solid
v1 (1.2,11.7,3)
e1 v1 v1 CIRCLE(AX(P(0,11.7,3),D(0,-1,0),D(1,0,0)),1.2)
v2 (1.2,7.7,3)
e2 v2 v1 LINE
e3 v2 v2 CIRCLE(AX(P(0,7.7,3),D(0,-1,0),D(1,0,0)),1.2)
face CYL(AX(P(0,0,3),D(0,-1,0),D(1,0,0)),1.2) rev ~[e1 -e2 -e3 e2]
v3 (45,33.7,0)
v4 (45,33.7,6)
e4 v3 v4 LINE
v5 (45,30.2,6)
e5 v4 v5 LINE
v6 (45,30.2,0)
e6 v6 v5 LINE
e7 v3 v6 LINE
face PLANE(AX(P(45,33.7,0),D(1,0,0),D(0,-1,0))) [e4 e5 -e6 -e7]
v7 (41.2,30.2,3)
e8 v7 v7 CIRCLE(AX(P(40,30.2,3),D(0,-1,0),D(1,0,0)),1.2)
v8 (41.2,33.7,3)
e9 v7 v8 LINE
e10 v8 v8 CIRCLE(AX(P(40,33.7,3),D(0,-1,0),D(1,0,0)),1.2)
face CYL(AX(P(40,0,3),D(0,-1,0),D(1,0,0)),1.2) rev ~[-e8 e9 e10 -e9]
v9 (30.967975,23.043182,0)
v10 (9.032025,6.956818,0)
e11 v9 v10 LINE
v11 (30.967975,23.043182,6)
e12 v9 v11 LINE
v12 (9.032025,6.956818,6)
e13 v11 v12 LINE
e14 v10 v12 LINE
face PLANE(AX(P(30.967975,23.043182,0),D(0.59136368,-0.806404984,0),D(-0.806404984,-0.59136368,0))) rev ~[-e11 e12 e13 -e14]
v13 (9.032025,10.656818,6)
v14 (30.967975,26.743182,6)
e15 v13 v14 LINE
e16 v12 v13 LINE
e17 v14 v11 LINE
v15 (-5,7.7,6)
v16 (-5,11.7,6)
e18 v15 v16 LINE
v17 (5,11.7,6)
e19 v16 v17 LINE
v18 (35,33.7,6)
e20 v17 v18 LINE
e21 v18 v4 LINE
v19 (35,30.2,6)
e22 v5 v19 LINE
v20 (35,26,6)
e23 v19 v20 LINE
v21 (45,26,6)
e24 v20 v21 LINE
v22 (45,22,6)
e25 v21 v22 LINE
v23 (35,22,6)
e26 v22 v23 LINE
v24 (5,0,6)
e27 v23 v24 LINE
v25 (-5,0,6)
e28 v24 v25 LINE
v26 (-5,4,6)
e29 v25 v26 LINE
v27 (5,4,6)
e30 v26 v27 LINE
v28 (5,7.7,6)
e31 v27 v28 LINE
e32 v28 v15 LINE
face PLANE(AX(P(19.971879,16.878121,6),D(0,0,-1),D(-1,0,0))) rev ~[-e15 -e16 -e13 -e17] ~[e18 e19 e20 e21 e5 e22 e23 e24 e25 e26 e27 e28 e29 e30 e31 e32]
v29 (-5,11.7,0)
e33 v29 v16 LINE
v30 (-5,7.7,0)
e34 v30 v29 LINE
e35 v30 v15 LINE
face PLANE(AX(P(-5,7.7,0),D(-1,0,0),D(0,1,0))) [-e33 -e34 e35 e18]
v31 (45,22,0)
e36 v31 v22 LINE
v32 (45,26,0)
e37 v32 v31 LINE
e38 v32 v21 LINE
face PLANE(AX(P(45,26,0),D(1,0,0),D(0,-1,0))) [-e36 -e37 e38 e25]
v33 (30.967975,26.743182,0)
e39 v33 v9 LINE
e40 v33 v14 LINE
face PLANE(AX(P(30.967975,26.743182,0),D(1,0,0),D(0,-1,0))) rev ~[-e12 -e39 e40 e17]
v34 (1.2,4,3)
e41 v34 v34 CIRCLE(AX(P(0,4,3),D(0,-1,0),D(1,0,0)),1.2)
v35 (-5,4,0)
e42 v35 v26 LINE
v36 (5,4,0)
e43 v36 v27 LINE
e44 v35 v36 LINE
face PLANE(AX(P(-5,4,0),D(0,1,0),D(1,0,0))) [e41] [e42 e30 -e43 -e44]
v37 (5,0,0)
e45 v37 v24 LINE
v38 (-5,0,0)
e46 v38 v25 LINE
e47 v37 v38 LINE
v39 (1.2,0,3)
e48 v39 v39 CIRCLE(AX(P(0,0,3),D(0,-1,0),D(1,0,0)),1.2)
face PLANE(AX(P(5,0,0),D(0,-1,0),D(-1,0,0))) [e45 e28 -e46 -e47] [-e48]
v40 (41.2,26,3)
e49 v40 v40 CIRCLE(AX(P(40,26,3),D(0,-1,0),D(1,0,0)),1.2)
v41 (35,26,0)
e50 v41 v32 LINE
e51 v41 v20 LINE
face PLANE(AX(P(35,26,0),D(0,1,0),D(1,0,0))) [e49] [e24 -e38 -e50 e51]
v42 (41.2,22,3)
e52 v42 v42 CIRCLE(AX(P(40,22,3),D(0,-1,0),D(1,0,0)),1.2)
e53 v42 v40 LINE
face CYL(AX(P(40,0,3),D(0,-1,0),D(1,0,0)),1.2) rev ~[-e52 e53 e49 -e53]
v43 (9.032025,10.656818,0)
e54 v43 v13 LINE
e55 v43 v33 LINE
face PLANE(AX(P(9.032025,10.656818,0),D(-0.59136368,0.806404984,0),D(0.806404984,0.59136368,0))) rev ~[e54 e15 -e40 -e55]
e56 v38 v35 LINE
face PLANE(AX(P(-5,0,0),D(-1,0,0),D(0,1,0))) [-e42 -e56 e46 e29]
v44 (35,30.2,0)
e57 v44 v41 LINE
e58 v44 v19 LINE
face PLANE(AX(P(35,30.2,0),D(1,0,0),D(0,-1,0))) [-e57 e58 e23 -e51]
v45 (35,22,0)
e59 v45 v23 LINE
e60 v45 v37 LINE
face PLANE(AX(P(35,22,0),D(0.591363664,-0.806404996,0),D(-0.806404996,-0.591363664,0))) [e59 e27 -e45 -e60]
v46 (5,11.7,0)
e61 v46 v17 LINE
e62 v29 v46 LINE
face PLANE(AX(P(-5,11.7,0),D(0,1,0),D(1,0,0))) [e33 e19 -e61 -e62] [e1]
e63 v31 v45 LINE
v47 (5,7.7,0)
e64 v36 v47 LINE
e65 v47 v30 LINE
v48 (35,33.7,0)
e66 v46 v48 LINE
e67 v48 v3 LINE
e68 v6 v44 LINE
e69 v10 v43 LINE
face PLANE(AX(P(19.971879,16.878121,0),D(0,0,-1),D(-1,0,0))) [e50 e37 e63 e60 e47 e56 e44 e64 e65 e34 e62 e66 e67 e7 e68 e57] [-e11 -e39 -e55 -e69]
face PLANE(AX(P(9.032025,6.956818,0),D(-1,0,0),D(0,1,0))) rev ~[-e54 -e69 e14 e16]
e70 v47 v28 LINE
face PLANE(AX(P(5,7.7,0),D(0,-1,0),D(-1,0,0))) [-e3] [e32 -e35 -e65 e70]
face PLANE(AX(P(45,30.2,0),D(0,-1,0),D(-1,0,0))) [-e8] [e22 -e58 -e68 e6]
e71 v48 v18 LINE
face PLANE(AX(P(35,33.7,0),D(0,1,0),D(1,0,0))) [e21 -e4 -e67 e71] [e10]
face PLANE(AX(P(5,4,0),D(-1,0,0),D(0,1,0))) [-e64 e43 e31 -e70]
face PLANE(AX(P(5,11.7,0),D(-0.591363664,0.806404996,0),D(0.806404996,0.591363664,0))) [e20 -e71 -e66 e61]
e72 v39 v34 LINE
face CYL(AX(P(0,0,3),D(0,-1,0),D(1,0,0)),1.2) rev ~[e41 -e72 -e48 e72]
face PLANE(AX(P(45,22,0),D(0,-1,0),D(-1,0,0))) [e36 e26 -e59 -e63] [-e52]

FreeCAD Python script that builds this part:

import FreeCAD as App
import Part
import Sketcher

V = App.Vector


def add_polygon(sketch, points):
    """Adds a closed chain of lines whose ends are joined by coincident constraints."""
    first, n = sketch.GeometryCount, len(points)
    for a, b in zip(points, points[1:] + points[:1]):
        sketch.addGeometry(Part.LineSegment(App.Vector(*a, 0), App.Vector(*b, 0)), False)
    for i in range(n):
        sketch.addConstraint(Sketcher.Constraint("Coincident", first + i, 2, first + (i + 1) % n, 1))

doc = App.newDocument("Part")
body = doc.addObject("PartDesign::Body", "Body")

# Sketch on XY plane
sketch1 = body.newObject("Sketcher::SketchObject", "Sketch")
sketch1.AttachmentSupport = (doc.getObject("XY_Plane"), [""])
sketch1.MapMode = "FlatFace"
add_polygon(sketch1, [(5, 11.7), (-5, 11.7), (-5, 7.7), (5, 7.7), (5, 4), (-5, 4), (-5, 0), (5, 0), (35, 22), (45, 22), (45, 26), (35, 26), (35, 30.2), (45, 30.2), (45, 33.7), (35, 33.7)])  # lines 0-15
add_polygon(sketch1, [(9, 10.7), (31, 26.7), (31, 23), (9, 7)])  # lines 16-19
sketch1.addConstraint([
    Sketcher.Constraint("Horizontal", 0),
    Sketcher.Constraint("Vertical", 1),
    Sketcher.Constraint("Horizontal", 2),
    Sketcher.Constraint("Vertical", 3),
    Sketcher.Constraint("Horizontal", 4),
    Sketcher.Constraint("Vertical", 5),
    Sketcher.Constraint("Horizontal", 6),
    Sketcher.Constraint("Horizontal", 8),
    Sketcher.Constraint("Vertical", 9),
    Sketcher.Constraint("Horizontal", 10),
    Sketcher.Constraint("Vertical", 11),
    Sketcher.Constraint("Horizontal", 12),
    Sketcher.Constraint("Vertical", 13),
    Sketcher.Constraint("Horizontal", 14),
    Sketcher.Constraint("Vertical", 17),
    Sketcher.Constraint("Vertical", 19),
    Sketcher.Constraint("Symmetric", 5, 2, 6, 2, -1, 1),
    Sketcher.Constraint("Parallel", 7, 15),
    Sketcher.Constraint("Parallel", 15, 16),
    Sketcher.Constraint("Parallel", 16, 18),
    Sketcher.Constraint("Vertical", 1, 2, 4, 2),
    Sketcher.Constraint("Vertical", 3, 2, 6, 2),
    Sketcher.Constraint("Vertical", 7, 2, 10, 2),
    Sketcher.Constraint("Vertical", 9, 2, 12, 2),
    Sketcher.Constraint("Vertical", 11, 2, 14, 2),
    Sketcher.Constraint("Vertical", 6, 2, 15, 2),
    Sketcher.Constraint("Equal", 6, 8),
    Sketcher.Constraint("Equal", 1, 5),
    Sketcher.Constraint("Equal", 5, 9),
    Sketcher.Constraint("Equal", 3, 17),
    Sketcher.Constraint("DistanceX", 0, 2, 0, 1, 10.0),
    Sketcher.Constraint("DistanceY", 1, 2, 1, 1, 4.0),
    Sketcher.Constraint("DistanceY", 3, 2, 3, 1, 3.7),
    Sketcher.Constraint("DistanceY", 11, 1, 11, 2, 4.2),
    Sketcher.Constraint("DistanceX", -1, 1, 7, 2, 35.0),
    Sketcher.Constraint("DistanceY", -1, 1, 7, 2, 22.0),
    Sketcher.Constraint("Distance", 16, 27.202151),
    Sketcher.Constraint("DistanceY", -1, 1, 18, 2, 6.956818),
    Sketcher.Constraint("DistanceX", -1, 1, 16, 2, 30.967975),
])
pad1 = body.newObject("PartDesign::Pad", "Pad")
pad1.Profile = sketch1
pad1.Length = 6

# Sketch on XZ plane
sketch2 = body.newObject("Sketcher::SketchObject", "Sketch001")
sketch2.AttachmentSupport = (doc.getObject("XZ_Plane"), [""])
sketch2.MapMode = "FlatFace"
sketch2.addGeometry([
    Part.Circle(V(0, 3, 0), V(0, 0, 1), 1.2),
    Part.Circle(V(40, 3, 0), V(0, 0, 1), 1.2),
], False)
sketch2.addConstraint([
    Sketcher.Constraint("Equal", 0, 1),
    Sketcher.Constraint("PointOnObject", 0, 3, -2),
    Sketcher.Constraint("Horizontal", 0, 3, 1, 3),
    Sketcher.Constraint("Diameter", 0, 2.4),
    Sketcher.Constraint("DistanceY", -1, 1, 0, 3, 3.0),
    Sketcher.Constraint("DistanceX", -1, 1, 1, 3, 40.0),
])
pocket1 = body.newObject("PartDesign::Pocket", "Pocket")
pocket1.Profile = sketch2
pocket1.Length = 50

doc.recompute()
